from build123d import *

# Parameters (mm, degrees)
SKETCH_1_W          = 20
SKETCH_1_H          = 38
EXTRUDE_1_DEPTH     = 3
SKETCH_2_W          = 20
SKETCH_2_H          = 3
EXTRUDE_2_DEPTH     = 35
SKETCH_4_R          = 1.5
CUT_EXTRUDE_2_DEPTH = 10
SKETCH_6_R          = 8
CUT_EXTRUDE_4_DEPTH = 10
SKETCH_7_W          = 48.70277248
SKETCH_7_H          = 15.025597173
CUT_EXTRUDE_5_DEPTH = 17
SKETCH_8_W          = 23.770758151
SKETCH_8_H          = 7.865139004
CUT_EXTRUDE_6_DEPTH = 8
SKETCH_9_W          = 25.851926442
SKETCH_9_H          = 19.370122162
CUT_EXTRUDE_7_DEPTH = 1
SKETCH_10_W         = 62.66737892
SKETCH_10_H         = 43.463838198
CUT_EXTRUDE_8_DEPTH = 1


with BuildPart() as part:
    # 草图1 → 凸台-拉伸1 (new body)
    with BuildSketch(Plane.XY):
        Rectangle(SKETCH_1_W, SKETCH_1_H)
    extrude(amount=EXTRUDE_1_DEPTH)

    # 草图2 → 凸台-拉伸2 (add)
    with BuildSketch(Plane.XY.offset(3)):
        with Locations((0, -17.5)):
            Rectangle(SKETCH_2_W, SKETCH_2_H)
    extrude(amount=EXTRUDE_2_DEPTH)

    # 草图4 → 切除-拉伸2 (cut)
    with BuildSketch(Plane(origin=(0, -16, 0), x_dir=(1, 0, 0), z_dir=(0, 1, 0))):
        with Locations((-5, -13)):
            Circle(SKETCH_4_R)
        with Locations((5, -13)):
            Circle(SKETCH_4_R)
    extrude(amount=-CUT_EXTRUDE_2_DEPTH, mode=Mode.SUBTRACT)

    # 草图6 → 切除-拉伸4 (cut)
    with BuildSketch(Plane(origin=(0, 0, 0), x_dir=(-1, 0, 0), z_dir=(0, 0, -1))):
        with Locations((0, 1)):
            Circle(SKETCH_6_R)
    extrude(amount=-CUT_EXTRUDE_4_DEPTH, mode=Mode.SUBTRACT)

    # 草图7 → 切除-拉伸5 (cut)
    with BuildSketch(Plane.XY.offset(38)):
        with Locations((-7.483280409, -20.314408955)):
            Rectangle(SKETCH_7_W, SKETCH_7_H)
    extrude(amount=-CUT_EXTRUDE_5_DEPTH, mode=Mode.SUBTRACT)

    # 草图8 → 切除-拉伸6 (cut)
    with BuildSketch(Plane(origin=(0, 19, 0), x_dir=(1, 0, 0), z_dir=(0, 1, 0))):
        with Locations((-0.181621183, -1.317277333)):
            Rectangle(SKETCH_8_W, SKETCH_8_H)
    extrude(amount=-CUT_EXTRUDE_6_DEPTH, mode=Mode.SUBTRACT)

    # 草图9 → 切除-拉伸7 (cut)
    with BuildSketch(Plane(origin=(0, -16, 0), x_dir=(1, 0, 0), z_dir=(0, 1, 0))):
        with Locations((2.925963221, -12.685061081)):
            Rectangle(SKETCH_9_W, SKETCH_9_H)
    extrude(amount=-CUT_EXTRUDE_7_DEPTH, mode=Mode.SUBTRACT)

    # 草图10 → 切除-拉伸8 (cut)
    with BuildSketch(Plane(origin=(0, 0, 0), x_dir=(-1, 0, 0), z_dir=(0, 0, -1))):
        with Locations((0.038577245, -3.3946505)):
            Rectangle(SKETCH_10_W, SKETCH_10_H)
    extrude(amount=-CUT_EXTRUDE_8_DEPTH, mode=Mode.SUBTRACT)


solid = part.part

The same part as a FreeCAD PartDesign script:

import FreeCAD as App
import Part
import Sketcher

V = App.Vector


def add_polygon(sketch, points):
    """Adds a closed chain of lines whose ends are joined by coincident constraints."""
    first, n = sketch.GeometryCount, len(points)
    for a, b in zip(points, points[1:] + points[:1]):
        sketch.addGeometry(Part.LineSegment(App.Vector(*a, 0), App.Vector(*b, 0)), False)
    for i in range(n):
        sketch.addConstraint(Sketcher.Constraint("Coincident", first + i, 2, first + (i + 1) % n, 1))

doc = App.newDocument("Part")
body = doc.addObject("PartDesign::Body", "Body")

# Sketch on XY plane
sketch1 = body.newObject("Sketcher::SketchObject", "Sketch")
sketch1.AttachmentSupport = (doc.getObject("XY_Plane"), [""])
sketch1.MapMode = "FlatFace"
add_polygon(sketch1, [(-10, 19), (-10, -19), (10, -19), (10, 19)])  # lines 0-3
sketch1.addConstraint(Sketcher.Constraint("Vertical", 0))
sketch1.addConstraint(Sketcher.Constraint("Horizontal", 1))
sketch1.addConstraint(Sketcher.Constraint("Vertical", 2))
sketch1.addConstraint(Sketcher.Constraint("Horizontal", 3))
sketch1.addConstraint(Sketcher.Constraint("Symmetric", 0, 2, 2, 2, -1, 1))
sketch1.addConstraint(Sketcher.Constraint("DistanceX", 1, 1, 1, 2, 20.0))
sketch1.addConstraint(Sketcher.Constraint("DistanceY", 0, 2, 0, 1, 38.0))
pad1 = body.newObject("PartDesign::Pad", "Pad")
pad1.Profile = sketch1
pad1.Length = 3

# Sketch on XY plane
sketch2 = body.newObject("Sketcher::SketchObject", "Sketch001")
sketch2.AttachmentSupport = (doc.getObject("XY_Plane"), [""])
sketch2.MapMode = "FlatFace"
sketch2.AttachmentOffset = App.Placement(V(0, 0, 3), App.Rotation())
add_polygon(sketch2, [(-10, -16), (-10, -19), (10, -19), (10, -16)])  # lines 0-3
sketch2.addConstraint(Sketcher.Constraint("Vertical", 0))
sketch2.addConstraint(Sketcher.Constraint("Horizontal", 1))
sketch2.addConstraint(Sketcher.Constraint("Vertical", 2))
sketch2.addConstraint(Sketcher.Constraint("Horizontal", 3))
sketch2.addConstraint(Sketcher.Constraint("DistanceX", 1, 1, 1, 2, 20.0))
sketch2.addConstraint(Sketcher.Constraint("DistanceY", 0, 2, 0, 1, 3.0))
sketch2.addConstraint(Sketcher.Constraint("DistanceX", 0, 2, -1, 1, 10.0))
sketch2.addConstraint(Sketcher.Constraint("DistanceY", 0, 2, -1, 1, 19.0))
pad2 = body.newObject("PartDesign::Pad", "Pad001")
pad2.Profile = sketch2
pad2.Length = 35

# Sketch on XZ plane
sketch3 = body.newObject("Sketcher::SketchObject", "Sketch002")
sketch3.AttachmentSupport = (doc.getObject("XZ_Plane"), [""])
sketch3.MapMode = "FlatFace"
sketch3.AttachmentOffset = App.Placement(V(0, 0, 16), App.Rotation())
sketch3.addGeometry(Part.Circle(V(-5, 13, 0), V(0, 0, 1), 1.5), False)
sketch3.addGeometry(Part.Circle(V(5, 13, 0), V(0, 0, 1), 1.5), False)
sketch3.addConstraint(Sketcher.Constraint("Equal", 0, 1))
sketch3.addConstraint(Sketcher.Constraint("Symmetric", 0, 3, 1, 3, -2))
sketch3.addConstraint(Sketcher.Constraint("Diameter", 0, 3.0))
sketch3.addConstraint(Sketcher.Constraint("DistanceX", 0, 3, -1, 1, 5.0))
sketch3.addConstraint(Sketcher.Constraint("DistanceY", -1, 1, 0, 3, 13.0))
pocket1 = body.newObject("PartDesign::Pocket", "Pocket")
pocket1.Profile = sketch3
pocket1.Length = 10
pocket1.Reversed = True

# Sketch on XY plane
sketch4 = body.newObject("Sketcher::SketchObject", "Sketch003")
sketch4.AttachmentSupport = (doc.getObject("XY_Plane"), [""])
sketch4.MapMode = "FlatFace"
sketch4.addGeometry(Part.Circle(V(0, 1, 0), V(0, 0, 1), 8), False)
sketch4.addConstraint(Sketcher.Constraint("PointOnObject", 0, 3, -2))
sketch4.addConstraint(Sketcher.Constraint("Diameter", 0, 16.0))
sketch4.addConstraint(Sketcher.Constraint("DistanceY", -1, 1, 0, 3, 1.0))
pocket2 = body.newObject("PartDesign::Pocket", "Pocket001")
pocket2.Profile = sketch4
pocket2.Length = 10
pocket2.Reversed = True

# Sketch on XY plane
sketch5 = body.newObject("Sketcher::SketchObject", "Sketch004")
sketch5.AttachmentSupport = (doc.getObject("XY_Plane"), [""])
sketch5.MapMode = "FlatFace"
sketch5.AttachmentOffset = App.Placement(V(0, 0, 38), App.Rotation())
add_polygon(sketch5, [(-31.834667, -12.80161), (-31.834667, -27.827208), (16.868106, -27.827208), (16.868106, -12.80161)])  # lines 0-3
sketch5.addConstraint(Sketcher.Constraint("Vertical", 0))
sketch5.addConstraint(Sketcher.Constraint("Horizontal", 1))
sketch5.addConstraint(Sketcher.Constraint("Vertical", 2))
sketch5.addConstraint(Sketcher.Constraint("Horizontal", 3))
sketch5.addConstraint(Sketcher.Constraint("DistanceX", 1, 1, 1, 2, 48.702772))
sketch5.addConstraint(Sketcher.Constraint("DistanceY", 0, 2, 0, 1, 15.025597))
sketch5.addConstraint(Sketcher.Constraint("DistanceY", 2, 2, -1, 1, 12.80161))
sketch5.addConstraint(Sketcher.Constraint("DistanceX", 0, 2, -1, 1, 31.834667))
pocket3 = body.newObject("PartDesign::Pocket", "Pocket002")
pocket3.Profile = sketch5
pocket3.Length = 17

# Sketch on XZ plane
sketch6 = body.newObject("Sketcher::SketchObject", "Sketch005")
sketch6.AttachmentSupport = (doc.getObject("XZ_Plane"), [""])
sketch6.MapMode = "FlatFace"
sketch6.AttachmentOffset = App.Placement(V(0, 0, -19), App.Rotation())
add_polygon(sketch6, [(-12.067, -2.615292), (-12.067, 5.249847), (11.703758, 5.249847), (11.703758, -2.615292)])  # lines 0-3
sketch6.addConstraint(Sketcher.Constraint("Vertical", 0))
sketch6.addConstraint(Sketcher.Constraint("Horizontal", 1))
sketch6.addConstraint(Sketcher.Constraint("Vertical", 2))
sketch6.addConstraint(Sketcher.Constraint("Horizontal", 3))
sketch6.addConstraint(Sketcher.Constraint("DistanceX", 0, 2, -1, 1, 12.067))
sketch6.addConstraint(Sketcher.Constraint("DistanceX", 1, 1, 1, 2, 23.770758))
sketch6.addConstraint(Sketcher.Constraint("DistanceY", 0, 1, 0, 2, 7.865139))
sketch6.addConstraint(Sketcher.Constraint("DistanceY", -1, 1, 0, 2, 5.249847))
pocket4 = body.newObject("PartDesign::Pocket", "Pocket003")
pocket4.Profile = sketch6
pocket4.Length = 8
pocket4.Reversed = True

# Sketch on XZ plane
sketch7 = body.newObject("Sketcher::SketchObject", "Sketch006")
sketch7.AttachmentSupport = (doc.getObject("XZ_Plane"), [""])
sketch7.MapMode = "FlatFace"
sketch7.AttachmentOffset = App.Placement(V(0, 0, 16), App.Rotation())
add_polygon(sketch7, [(-10, 3), (-10, 22.370122), (15.851926, 22.370122), (15.851926, 3)])  # lines 0-3
sketch7.addConstraint(Sketcher.Constraint("Vertical", 0))
sketch7.addConstraint(Sketcher.Constraint("Horizontal", 1))
sketch7.addConstraint(Sketcher.Constraint("Vertical", 2))
sketch7.addConstraint(Sketcher.Constraint("Horizontal", 3))
sketch7.addConstraint(Sketcher.Constraint("DistanceX", 0, 2, -1, 1, 10.0))
sketch7.addConstraint(Sketcher.Constraint("DistanceY", -1, 1, 2, 2, 3.0))
sketch7.addConstraint(Sketcher.Constraint("DistanceX", 1, 1, 1, 2, 25.851926))
sketch7.addConstraint(Sketcher.Constraint("DistanceY", 0, 1, 0, 2, 19.370122))
pocket5 = body.newObject("PartDesign::Pocket", "Pocket004")
pocket5.Profile = sketch7
pocket5.Length = 1
pocket5.Reversed = True

# Sketch on XY plane
sketch8 = body.newObject("Sketcher::SketchObject", "Sketch007")
sketch8.AttachmentSupport = (doc.getObject("XY_Plane"), [""])
sketch8.MapMode = "FlatFace"
add_polygon(sketch8, [(31.295112, 18.337269), (31.295112, -25.12657), (-31.372267, -25.12657), (-31.372267, 18.337269)])  # lines 0-3
sketch8.addConstraint(Sketcher.Constraint("Vertical", 0))
sketch8.addConstraint(Sketcher.Constraint("Horizontal", 1))
sketch8.addConstraint(Sketcher.Constraint("Vertical", 2))
sketch8.addConstraint(Sketcher.Constraint("Horizontal", 3))
sketch8.addConstraint(Sketcher.Constraint("DistanceX", 1, 2, 1, 1, 62.667379))
sketch8.addConstraint(Sketcher.Constraint("DistanceY", 0, 2, 0, 1, 43.463838))
sketch8.addConstraint(Sketcher.Constraint("DistanceY", 0, 2, -1, 1, 25.12657))
sketch8.addConstraint(Sketcher.Constraint("DistanceX", -1, 1, 0, 2, 31.295112))
pocket6 = body.newObject("PartDesign::Pocket", "Pocket005")
pocket6.Profile = sketch8
pocket6.Length = 1
pocket6.Reversed = True

doc.recompute()
